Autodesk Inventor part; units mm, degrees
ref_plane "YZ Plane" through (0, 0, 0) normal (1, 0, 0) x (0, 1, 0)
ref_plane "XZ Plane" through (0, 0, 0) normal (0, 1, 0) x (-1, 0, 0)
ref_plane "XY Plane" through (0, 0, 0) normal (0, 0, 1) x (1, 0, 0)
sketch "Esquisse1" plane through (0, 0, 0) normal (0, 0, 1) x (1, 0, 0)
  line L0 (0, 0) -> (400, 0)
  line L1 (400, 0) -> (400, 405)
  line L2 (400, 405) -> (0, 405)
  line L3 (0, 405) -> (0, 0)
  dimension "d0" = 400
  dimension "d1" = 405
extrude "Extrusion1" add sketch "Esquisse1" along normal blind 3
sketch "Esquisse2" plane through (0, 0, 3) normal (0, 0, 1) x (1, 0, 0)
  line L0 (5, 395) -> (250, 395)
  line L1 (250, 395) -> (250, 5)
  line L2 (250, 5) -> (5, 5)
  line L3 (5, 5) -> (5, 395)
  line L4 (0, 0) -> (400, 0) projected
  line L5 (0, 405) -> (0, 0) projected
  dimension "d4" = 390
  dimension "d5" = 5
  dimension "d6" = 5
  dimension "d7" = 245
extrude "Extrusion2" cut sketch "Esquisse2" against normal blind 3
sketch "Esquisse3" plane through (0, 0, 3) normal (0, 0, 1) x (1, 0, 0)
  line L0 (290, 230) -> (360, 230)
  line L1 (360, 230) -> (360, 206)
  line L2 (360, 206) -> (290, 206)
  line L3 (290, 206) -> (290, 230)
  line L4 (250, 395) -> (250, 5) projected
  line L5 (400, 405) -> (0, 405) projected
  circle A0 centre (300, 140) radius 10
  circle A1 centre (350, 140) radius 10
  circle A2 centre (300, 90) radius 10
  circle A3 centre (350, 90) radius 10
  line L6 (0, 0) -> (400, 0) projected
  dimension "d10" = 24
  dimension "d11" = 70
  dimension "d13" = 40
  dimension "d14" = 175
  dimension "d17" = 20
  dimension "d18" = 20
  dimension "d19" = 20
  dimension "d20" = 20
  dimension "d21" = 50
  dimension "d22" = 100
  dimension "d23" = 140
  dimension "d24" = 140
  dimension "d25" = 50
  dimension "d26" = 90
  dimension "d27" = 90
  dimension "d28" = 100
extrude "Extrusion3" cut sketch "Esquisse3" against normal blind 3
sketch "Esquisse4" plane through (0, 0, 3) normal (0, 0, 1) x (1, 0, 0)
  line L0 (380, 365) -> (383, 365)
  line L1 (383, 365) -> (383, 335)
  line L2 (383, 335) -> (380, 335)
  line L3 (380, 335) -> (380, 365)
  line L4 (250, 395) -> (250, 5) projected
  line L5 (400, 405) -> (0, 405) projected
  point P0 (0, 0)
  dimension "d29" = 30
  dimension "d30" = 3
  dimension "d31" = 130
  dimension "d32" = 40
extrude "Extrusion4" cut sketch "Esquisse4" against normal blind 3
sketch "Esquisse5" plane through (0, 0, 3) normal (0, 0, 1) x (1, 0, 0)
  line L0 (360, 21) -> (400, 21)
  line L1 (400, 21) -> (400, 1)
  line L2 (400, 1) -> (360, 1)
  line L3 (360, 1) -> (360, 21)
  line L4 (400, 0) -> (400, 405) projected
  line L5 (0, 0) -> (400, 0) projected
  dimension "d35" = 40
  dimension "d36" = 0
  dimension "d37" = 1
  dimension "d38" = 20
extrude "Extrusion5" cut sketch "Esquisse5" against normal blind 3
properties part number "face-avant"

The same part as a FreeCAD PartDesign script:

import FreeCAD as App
import Part
import Sketcher

V = App.Vector
Q = App.Units.Quantity

doc = App.newDocument("Part")
body = doc.addObject("PartDesign::Body", "Body")

# Sketch on XY plane
sketch1 = doc.addObject("Sketcher::SketchObject", "Sketch")
body.addObject(sketch1)
sketch1.AttachmentSupport = (doc.XY_Plane, [""])
sketch1.MapMode = "FlatFace"
sketch1.addGeometry([
    Part.LineSegment(V(0, 405, 0), V(0, 0, 0)),
    Part.LineSegment(V(0, 0, 0), V(400, 0, 0)),
    Part.LineSegment(V(400, 0, 0), V(400, 405, 0)),
    Part.LineSegment(V(400, 405, 0), V(0, 405, 0)),
], False)
sketch1.addConstraint([
    Sketcher.Constraint("Coincident", 0, 2, 1, 1),
    Sketcher.Constraint("Coincident", 1, 2, 2, 1),
    Sketcher.Constraint("Coincident", 2, 2, 3, 1),
    Sketcher.Constraint("Coincident", 3, 2, 0, 1),
    Sketcher.Constraint("Vertical", 0),
    Sketcher.Constraint("Horizontal", 1),
    Sketcher.Constraint("Vertical", 2),
    Sketcher.Constraint("Horizontal", 3),
    Sketcher.Constraint("Coincident", 0, 2, -1, 1),
    Sketcher.Constraint("DistanceX", 1, 1, 1, 2, Q("400 mm")),
    Sketcher.Constraint("DistanceY", 0, 2, 0, 1, Q("405 mm")),
])
pad1 = doc.addObject("PartDesign::Pad", "Pad")
body.addObject(pad1)
pad1.Profile = sketch1
pad1.Length = 3

# Sketch on XY plane
sketch2 = doc.addObject("Sketcher::SketchObject", "Sketch001")
body.addObject(sketch2)
sketch2.AttachmentSupport = (doc.XY_Plane, [""])
sketch2.MapMode = "FlatFace"
sketch2.AttachmentOffset = App.Placement(V(0, 0, 3), App.Rotation())
sketch2.addGeometry([
    Part.LineSegment(V(250, 395, 0), V(5, 395, 0)),
    Part.LineSegment(V(5, 395, 0), V(5, 5, 0)),
    Part.LineSegment(V(5, 5, 0), V(250, 5, 0)),
    Part.LineSegment(V(250, 5, 0), V(250, 395, 0)),
], False)
sketch2.addConstraint([
    Sketcher.Constraint("Coincident", 0, 2, 1, 1),
    Sketcher.Constraint("Coincident", 1, 2, 2, 1),
    Sketcher.Constraint("Coincident", 2, 2, 3, 1),
    Sketcher.Constraint("Coincident", 3, 2, 0, 1),
    Sketcher.Constraint("Horizontal", 0),
    Sketcher.Constraint("Vertical", 1),
    Sketcher.Constraint("Horizontal", 2),
    Sketcher.Constraint("Vertical", 3),
    Sketcher.Constraint("DistanceX", 0, 2, 0, 1, Q("245 mm")),
    Sketcher.Constraint("DistanceY", 1, 2, 1, 1, Q("390 mm")),
    Sketcher.Constraint("DistanceX", -1, 1, 0, 2, Q("5 mm")),
    Sketcher.Constraint("DistanceY", -1, 1, 1, 2, Q("5 mm")),
])
pocket1 = doc.addObject("PartDesign::Pocket", "Pocket")
body.addObject(pocket1)
pocket1.Profile = sketch2
pocket1.Length = 3

# Sketch on XY plane
sketch3 = doc.addObject("Sketcher::SketchObject", "Sketch002")
body.addObject(sketch3)
sketch3.AttachmentSupport = (doc.XY_Plane, [""])
sketch3.MapMode = "FlatFace"
sketch3.AttachmentOffset = App.Placement(V(0, 0, 3), App.Rotation())
sketch3.addGeometry([
    Part.LineSegment(V(360, 230, 0), V(290, 230, 0)),  # 0
    Part.LineSegment(V(290, 230, 0), V(290, 206, 0)),  # 1
    Part.LineSegment(V(290, 206, 0), V(360, 206, 0)),  # 2
    Part.LineSegment(V(360, 206, 0), V(360, 230, 0)),  # 3
    Part.Circle(V(300, 140, 0), V(0, 0, 1), 10),  # 4
    Part.Circle(V(350, 140, 0), V(0, 0, 1), 10),  # 5
    Part.Circle(V(300, 90, 0), V(0, 0, 1), 10),  # 6
    Part.Circle(V(350, 90, 0), V(0, 0, 1), 10),  # 7
], False)
sketch3.addConstraint([
    Sketcher.Constraint("Coincident", 0, 2, 1, 1),
    Sketcher.Constraint("Coincident", 1, 2, 2, 1),
    Sketcher.Constraint("Coincident", 2, 2, 3, 1),
    Sketcher.Constraint("Coincident", 3, 2, 0, 1),
    Sketcher.Constraint("Horizontal", 0),
    Sketcher.Constraint("Vertical", 1),
    Sketcher.Constraint("Horizontal", 2),
    Sketcher.Constraint("Vertical", 3),
    Sketcher.Constraint("Equal", 4, 5),
    Sketcher.Constraint("Equal", 5, 6),
    Sketcher.Constraint("Equal", 6, 7),
    Sketcher.Constraint("Horizontal", 4, 3, 5, 3),
    Sketcher.Constraint("Horizontal", 6, 3, 7, 3),
    Sketcher.Constraint("Vertical", 4, 3, 6, 3),
    Sketcher.Constraint("Vertical", 5, 3, 7, 3),
    Sketcher.Constraint("Diameter", 4, Q("20 mm")),
    Sketcher.Constraint("DistanceX", 0, 2, 0, 1, Q("70 mm")),
    Sketcher.Constraint("DistanceY", 1, 2, 1, 1, Q("24 mm")),
    Sketcher.Constraint("DistanceY", -1, 1, 4, 3, Q("140 mm")),
    Sketcher.Constraint("DistanceY", -1, 1, 6, 3, Q("90 mm")),
    Sketcher.Constraint("DistanceX", 4, 3, 5, 3, Q("50 mm")),
    Sketcher.Constraint("DistanceY", 4, 3, 0, 2, Q("90 mm")),
    Sketcher.Constraint("DistanceX", -1, 1, 4, 3, Q("300 mm")),
    Sketcher.Constraint("DistanceX", -1, 1, 0, 2, Q("290 mm")),
])
pocket2 = doc.addObject("PartDesign::Pocket", "Pocket001")
body.addObject(pocket2)
pocket2.Profile = sketch3
pocket2.Length = 3

# Sketch on XY plane
sketch4 = doc.addObject("Sketcher::SketchObject", "Sketch003")
body.addObject(sketch4)
sketch4.AttachmentSupport = (doc.XY_Plane, [""])
sketch4.MapMode = "FlatFace"
sketch4.AttachmentOffset = App.Placement(V(0, 0, 3), App.Rotation())
sketch4.addGeometry([
    Part.LineSegment(V(383, 365, 0), V(380, 365, 0)),
    Part.LineSegment(V(380, 365, 0), V(380, 335, 0)),
    Part.LineSegment(V(380, 335, 0), V(383, 335, 0)),
    Part.LineSegment(V(383, 335, 0), V(383, 365, 0)),
], False)
sketch4.addConstraint([
    Sketcher.Constraint("Coincident", 0, 2, 1, 1),
    Sketcher.Constraint("Coincident", 1, 2, 2, 1),
    Sketcher.Constraint("Coincident", 2, 2, 3, 1),
    Sketcher.Constraint("Coincident", 3, 2, 0, 1),
    Sketcher.Constraint("Horizontal", 0),
    Sketcher.Constraint("Vertical", 1),
    Sketcher.Constraint("Horizontal", 2),
    Sketcher.Constraint("Vertical", 3),
    Sketcher.Constraint("DistanceX", 0, 2, 0, 1, Q("3 mm")),
    Sketcher.Constraint("DistanceY", 1, 2, 1, 1, Q("30 mm")),
    Sketcher.Constraint("DistanceX", -1, 1, 0, 2, Q("380 mm")),
    Sketcher.Constraint("DistanceY", -1, 1, 0, 2, Q("365 mm")),
])
pocket3 = doc.addObject("PartDesign::Pocket", "Pocket002")
body.addObject(pocket3)
pocket3.Profile = sketch4
pocket3.Length = 3

# Sketch on XY plane
sketch5 = doc.addObject("Sketcher::SketchObject", "Sketch004")
body.addObject(sketch5)
sketch5.AttachmentSupport = (doc.XY_Plane, [""])
sketch5.MapMode = "FlatFace"
sketch5.AttachmentOffset = App.Placement(V(0, 0, 3), App.Rotation())
sketch5.addGeometry([
    Part.LineSegment(V(400, 21, 0), V(360, 21, 0)),
    Part.LineSegment(V(360, 21, 0), V(360, 1, 0)),
    Part.LineSegment(V(360, 1, 0), V(400, 1, 0)),
    Part.LineSegment(V(400, 1, 0), V(400, 21, 0)),
], False)
sketch5.addConstraint([
    Sketcher.Constraint("Coincident", 0, 2, 1, 1),
    Sketcher.Constraint("Coincident", 1, 2, 2, 1),
    Sketcher.Constraint("Coincident", 2, 2, 3, 1),
    Sketcher.Constraint("Coincident", 3, 2, 0, 1),
    Sketcher.Constraint("Horizontal", 0),
    Sketcher.Constraint("Vertical", 1),
    Sketcher.Constraint("Horizontal", 2),
    Sketcher.Constraint("Vertical", 3),
    Sketcher.Constraint("DistanceX", 0, 2, 0, 1, Q("40 mm")),
    Sketcher.Constraint("DistanceY", 1, 2, 1, 1, Q("20 mm")),
    Sketcher.Constraint("DistanceY", -1, 1, 1, 2, Q("1 mm")),
    Sketcher.Constraint("DistanceX", -1, 1, 0, 2, Q("360 mm")),
])
pocket4 = doc.addObject("PartDesign::Pocket", "Pocket003")
body.addObject(pocket4)
pocket4.Profile = sketch5
pocket4.Length = 3

doc.recompute()
